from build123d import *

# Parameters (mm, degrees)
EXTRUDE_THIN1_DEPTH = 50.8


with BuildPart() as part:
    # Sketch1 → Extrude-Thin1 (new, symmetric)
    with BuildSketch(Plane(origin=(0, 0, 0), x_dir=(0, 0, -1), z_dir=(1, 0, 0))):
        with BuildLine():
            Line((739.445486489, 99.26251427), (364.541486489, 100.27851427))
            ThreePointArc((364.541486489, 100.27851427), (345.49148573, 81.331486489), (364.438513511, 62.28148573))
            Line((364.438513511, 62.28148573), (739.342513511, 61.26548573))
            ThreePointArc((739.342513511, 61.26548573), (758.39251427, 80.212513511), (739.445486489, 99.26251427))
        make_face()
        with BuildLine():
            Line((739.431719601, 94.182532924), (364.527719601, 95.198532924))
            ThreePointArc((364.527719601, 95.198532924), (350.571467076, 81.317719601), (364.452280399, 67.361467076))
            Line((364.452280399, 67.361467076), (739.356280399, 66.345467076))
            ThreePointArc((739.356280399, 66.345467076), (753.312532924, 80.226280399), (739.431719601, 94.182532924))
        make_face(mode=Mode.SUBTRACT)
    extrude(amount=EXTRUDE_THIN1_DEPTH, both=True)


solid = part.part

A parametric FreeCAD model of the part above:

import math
import FreeCAD as App
import Part
import Sketcher
from FreeCAD import Vector
Q = App.Units.Quantity

doc = App.newDocument("Part")
body = doc.addObject("PartDesign::Body", "Body")

# Sketch on YZ plane
sketch1 = body.newObject("Sketcher::SketchObject", "Sketch")
sketch1.AttachmentSupport = (doc.getObject("YZ_Plane"), [""])
sketch1.MapMode = "FlatFace"
sketch1.addGeometry([
    Part.LineSegment(Vector(99, -739, 0), Vector(100, -365, 0)),  # 0
    Part.ArcOfCircle(Part.Circle(Vector(81, -364, 0), Vector(0, 0, 1), 19), math.radians(0), math.radians(180)),  # 1
    Part.LineSegment(Vector(62, -364, 0), Vector(61, -739, 0)),  # 2
    Part.ArcOfCircle(Part.Circle(Vector(80, -739, 0), Vector(0, 0, 1), 19), math.radians(180), math.radians(360)),  # 3
    Part.LineSegment(Vector(95, -365, 0), Vector(94, -739, 0)),  # 4
    Part.ArcOfCircle(Part.Circle(Vector(80, -739, 0), Vector(0, 0, 1), 14), math.radians(180), math.radians(360)),  # 5
    Part.LineSegment(Vector(66, -739, 0), Vector(67, -364, 0)),  # 6
    Part.ArcOfCircle(Part.Circle(Vector(81, -364, 0), Vector(0, 0, 1), 14), math.radians(0), math.radians(180)),  # 7
], False)
sketch1.addConstraint([
    Sketcher.Constraint("Tangent", 0, 2, 1, 1),
    Sketcher.Constraint("Tangent", 1, 2, 2, 1),
    Sketcher.Constraint("Tangent", 2, 2, 3, 1),
    Sketcher.Constraint("Tangent", 3, 2, 0, 1),
    Sketcher.Constraint("Tangent", 4, 2, 5, 2),
    Sketcher.Constraint("Tangent", 5, 1, 6, 1),
    Sketcher.Constraint("Tangent", 6, 2, 7, 2),
    Sketcher.Constraint("Tangent", 7, 1, 4, 1),
    Sketcher.Constraint("Coincident", 5, 3, 3, 3),
    Sketcher.Constraint("Coincident", 7, 3, 1, 3),
    Sketcher.Constraint("Equal", 1, 3),
    Sketcher.Constraint("Equal", 5, 7),
    Sketcher.Constraint("DistanceX", -1, 1, 1, 3, Q("3.2 in")),
    Sketcher.Constraint("DistanceY", 1, 3, -1, 1, Q("14.35 in")),
    Sketcher.Constraint("DistanceX", -1, 1, 3, 3, Q("3.16 in")),
    Sketcher.Constraint("DistanceY", 3, 3, -1, 1, Q("29.11 in")),
    Sketcher.Constraint("Radius", 1, Q("18.998584 mm")),
    Sketcher.Constraint("Radius", 5, Q("13.918584 mm")),
])
pad1 = body.newObject("PartDesign::Pad", "Pad")
pad1.Profile = sketch1
pad1.Length = Q("4 in")
pad1.Midplane = True

doc.recompute()
